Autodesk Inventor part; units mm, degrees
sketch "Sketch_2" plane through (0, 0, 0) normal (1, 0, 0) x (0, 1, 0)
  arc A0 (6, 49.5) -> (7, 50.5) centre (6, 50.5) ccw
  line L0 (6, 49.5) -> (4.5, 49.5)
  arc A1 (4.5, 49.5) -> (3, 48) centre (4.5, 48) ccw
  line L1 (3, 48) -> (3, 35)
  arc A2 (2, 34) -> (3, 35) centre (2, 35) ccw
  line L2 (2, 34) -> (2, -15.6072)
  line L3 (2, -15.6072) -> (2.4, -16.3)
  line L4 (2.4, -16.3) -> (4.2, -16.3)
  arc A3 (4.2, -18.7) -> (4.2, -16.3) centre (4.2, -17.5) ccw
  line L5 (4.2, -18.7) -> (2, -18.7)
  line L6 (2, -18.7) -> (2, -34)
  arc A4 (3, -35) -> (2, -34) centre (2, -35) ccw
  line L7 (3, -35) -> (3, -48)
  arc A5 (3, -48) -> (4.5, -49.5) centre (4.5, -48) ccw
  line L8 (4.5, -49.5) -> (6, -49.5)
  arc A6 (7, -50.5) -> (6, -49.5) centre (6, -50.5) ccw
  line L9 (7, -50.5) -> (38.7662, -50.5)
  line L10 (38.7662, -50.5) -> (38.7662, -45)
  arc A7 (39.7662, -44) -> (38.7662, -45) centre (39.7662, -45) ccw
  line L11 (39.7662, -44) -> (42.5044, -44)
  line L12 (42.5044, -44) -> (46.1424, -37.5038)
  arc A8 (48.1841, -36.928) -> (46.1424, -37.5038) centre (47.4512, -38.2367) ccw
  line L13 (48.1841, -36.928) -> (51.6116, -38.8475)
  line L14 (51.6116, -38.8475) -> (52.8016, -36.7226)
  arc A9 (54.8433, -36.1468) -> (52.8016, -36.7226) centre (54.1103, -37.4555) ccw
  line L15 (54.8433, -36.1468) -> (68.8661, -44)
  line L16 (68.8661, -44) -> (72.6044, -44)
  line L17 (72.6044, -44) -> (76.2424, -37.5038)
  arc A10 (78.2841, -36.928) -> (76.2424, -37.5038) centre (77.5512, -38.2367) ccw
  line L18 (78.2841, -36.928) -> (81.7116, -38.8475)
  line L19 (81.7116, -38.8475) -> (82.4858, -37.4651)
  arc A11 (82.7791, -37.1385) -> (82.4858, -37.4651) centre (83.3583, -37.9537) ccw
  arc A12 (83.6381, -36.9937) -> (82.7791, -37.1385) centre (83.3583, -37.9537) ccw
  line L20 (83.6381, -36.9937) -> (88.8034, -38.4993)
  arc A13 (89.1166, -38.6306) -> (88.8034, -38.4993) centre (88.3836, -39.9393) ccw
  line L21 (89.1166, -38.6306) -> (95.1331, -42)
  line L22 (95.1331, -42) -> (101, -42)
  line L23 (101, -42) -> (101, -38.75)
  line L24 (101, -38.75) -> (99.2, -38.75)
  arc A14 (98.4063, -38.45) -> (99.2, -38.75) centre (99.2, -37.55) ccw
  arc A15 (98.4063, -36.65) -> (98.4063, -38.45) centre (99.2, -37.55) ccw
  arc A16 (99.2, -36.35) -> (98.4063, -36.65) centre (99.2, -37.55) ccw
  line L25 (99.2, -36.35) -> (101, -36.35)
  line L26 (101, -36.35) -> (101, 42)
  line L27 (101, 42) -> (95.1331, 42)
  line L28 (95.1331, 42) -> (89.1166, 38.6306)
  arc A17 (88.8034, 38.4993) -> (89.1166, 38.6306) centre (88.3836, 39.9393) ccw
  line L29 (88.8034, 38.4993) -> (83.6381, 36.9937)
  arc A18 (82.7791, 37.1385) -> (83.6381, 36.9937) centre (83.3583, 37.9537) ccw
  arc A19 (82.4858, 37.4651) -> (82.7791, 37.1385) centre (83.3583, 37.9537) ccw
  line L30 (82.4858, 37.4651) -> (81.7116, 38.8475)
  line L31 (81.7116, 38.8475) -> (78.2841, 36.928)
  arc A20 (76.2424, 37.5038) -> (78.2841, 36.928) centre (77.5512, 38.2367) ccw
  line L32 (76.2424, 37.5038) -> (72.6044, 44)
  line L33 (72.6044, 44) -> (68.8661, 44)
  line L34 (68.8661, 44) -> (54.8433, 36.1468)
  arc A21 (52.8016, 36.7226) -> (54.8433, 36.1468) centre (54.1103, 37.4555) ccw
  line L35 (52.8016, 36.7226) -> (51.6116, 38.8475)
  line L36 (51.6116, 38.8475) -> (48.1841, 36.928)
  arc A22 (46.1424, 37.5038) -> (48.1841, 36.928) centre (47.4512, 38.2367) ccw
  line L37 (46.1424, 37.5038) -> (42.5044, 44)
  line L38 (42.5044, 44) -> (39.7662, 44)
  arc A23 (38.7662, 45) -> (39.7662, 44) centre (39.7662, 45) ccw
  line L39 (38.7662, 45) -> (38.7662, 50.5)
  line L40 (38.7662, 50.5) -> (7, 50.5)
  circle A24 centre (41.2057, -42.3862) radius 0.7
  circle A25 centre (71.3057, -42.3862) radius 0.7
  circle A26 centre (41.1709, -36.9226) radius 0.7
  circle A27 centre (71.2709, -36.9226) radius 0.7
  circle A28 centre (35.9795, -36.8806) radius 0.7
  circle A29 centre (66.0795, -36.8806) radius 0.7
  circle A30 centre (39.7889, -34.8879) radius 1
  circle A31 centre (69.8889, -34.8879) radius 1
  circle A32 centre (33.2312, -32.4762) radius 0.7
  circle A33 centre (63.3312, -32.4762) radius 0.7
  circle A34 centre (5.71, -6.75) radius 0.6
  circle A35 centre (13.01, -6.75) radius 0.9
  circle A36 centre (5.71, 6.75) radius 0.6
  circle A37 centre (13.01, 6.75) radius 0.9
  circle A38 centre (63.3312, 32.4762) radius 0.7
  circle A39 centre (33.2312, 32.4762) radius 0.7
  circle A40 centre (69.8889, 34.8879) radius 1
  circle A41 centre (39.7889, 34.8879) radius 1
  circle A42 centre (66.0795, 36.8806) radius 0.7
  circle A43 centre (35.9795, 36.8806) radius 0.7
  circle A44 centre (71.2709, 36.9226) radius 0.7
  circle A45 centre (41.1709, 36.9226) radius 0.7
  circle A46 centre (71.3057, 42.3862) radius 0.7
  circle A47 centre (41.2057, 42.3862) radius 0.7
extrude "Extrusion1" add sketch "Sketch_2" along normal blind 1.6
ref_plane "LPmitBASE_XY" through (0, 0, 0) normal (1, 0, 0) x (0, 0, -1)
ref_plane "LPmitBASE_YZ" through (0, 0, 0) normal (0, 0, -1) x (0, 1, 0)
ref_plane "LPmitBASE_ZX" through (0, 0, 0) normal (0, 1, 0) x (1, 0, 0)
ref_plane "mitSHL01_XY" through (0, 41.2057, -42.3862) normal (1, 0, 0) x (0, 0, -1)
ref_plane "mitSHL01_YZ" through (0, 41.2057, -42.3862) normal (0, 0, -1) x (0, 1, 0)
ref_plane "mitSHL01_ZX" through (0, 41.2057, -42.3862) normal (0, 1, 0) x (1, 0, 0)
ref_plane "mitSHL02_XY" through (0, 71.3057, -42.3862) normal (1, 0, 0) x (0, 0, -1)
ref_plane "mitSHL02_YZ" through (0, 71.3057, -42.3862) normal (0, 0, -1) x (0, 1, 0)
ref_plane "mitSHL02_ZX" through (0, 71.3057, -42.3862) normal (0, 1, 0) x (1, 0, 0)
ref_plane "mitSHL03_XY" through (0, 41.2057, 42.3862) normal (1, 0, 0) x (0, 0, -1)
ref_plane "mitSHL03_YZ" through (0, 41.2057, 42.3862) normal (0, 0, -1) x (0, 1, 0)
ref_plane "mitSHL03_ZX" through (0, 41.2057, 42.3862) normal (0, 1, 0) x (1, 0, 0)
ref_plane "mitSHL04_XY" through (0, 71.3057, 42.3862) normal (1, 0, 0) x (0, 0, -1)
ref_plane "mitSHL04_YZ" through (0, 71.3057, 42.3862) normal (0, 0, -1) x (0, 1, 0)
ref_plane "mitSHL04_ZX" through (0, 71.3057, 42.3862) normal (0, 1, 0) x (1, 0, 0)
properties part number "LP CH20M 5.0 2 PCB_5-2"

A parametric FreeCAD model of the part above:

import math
import FreeCAD as App
import Part
import Sketcher
from FreeCAD import Vector
Q = App.Units.Quantity

doc = App.newDocument("Part")
params = doc.addObject("Spreadsheet::Sheet", "Params")
for row, (alias, value) in enumerate([
    ("sketch1_diameter", "2 mm"),
    ("sketch1_diameter2", "2 mm"),
    ("sketch1_diameter3", "2 mm"),
    ("sketch1_diameter4", "2 mm"),
    ("sketch1_radius", "1 mm"),
    ("pad1_length", "1.6 mm"),
], start=1):
    params.set(f"A{row}", alias)
    params.set(f"B{row}", "=" + value)
    params.setAlias(f"B{row}", alias)

body = doc.addObject("PartDesign::Body", "Body")

sketch1 = body.newObject("Sketcher::SketchObject", "Sketch")
sketch1.AttachmentSupport = (doc.getObject("YZ_Plane"), [""])
sketch1.MapMode = "FlatFace"
sketch1.addGeometry([
    Part.ArcOfCircle(Part.Circle(Vector(6, 50.5, 0), Vector(0, 0, 1), 1), math.radians(-90), math.radians(0)),
    Part.LineSegment(Vector(6, 49.5, 0), Vector(4.5, 49.5, 0)),
    Part.ArcOfCircle(Part.Circle(Vector(4.5, 48, 0), Vector(0, 0, 1), 1.5), math.radians(90), math.radians(180)),
    Part.LineSegment(Vector(3, 48, 0), Vector(3, 35, 0)),
    Part.ArcOfCircle(Part.Circle(Vector(2, 35, 0), Vector(0, 0, 1), 1), math.radians(-90), math.radians(0)),
    Part.LineSegment(Vector(2, 34, 0), Vector(2, -15.6072, 0)),
    Part.LineSegment(Vector(2, -15.6072, 0), Vector(2.4, -16.3, 0)),
    Part.LineSegment(Vector(2.4, -16.3, 0), Vector(4.2, -16.3, 0)),
    Part.ArcOfCircle(Part.Circle(Vector(4.2, -17.5, 0), Vector(0, 0, 1), 1.2), math.radians(-90), math.radians(90)),
    Part.LineSegment(Vector(4.2, -18.7, 0), Vector(2, -18.7, 0)),
    Part.LineSegment(Vector(2, -18.7, 0), Vector(2, -34, 0)),
    Part.ArcOfCircle(Part.Circle(Vector(2, -35, 0), Vector(0, 0, 1), 1), math.radians(0), math.radians(90)),
    Part.LineSegment(Vector(3, -35, 0), Vector(3, -48, 0)),
    Part.ArcOfCircle(Part.Circle(Vector(4.5, -48, 0), Vector(0, 0, 1), 1.5), math.radians(180), math.radians(270)),
    Part.LineSegment(Vector(4.5, -49.5, 0), Vector(6, -49.5, 0)),
    Part.ArcOfCircle(Part.Circle(Vector(6, -50.5, 0), Vector(0, 0, 1), 1), math.radians(0), math.radians(90)),
    Part.LineSegment(Vector(7, -50.5, 0), Vector(38.7662, -50.5, 0)),
    Part.LineSegment(Vector(38.7662, -50.5, 0), Vector(38.7662, -45, 0)),
    Part.ArcOfCircle(Part.Circle(Vector(39.7662, -45, 0), Vector(0, 0, 1), 1), math.radians(90), math.radians(180)),
    Part.LineSegment(Vector(39.7662, -44, 0), Vector(42.5044, -44, 0)),
    Part.LineSegment(Vector(42.5044, -44, 0), Vector(46.1424, -37.5038, 0)),
    Part.ArcOfCircle(Part.Circle(Vector(47.4512, -38.2367, 0), Vector(0, 0, 1), 1.499946), math.radians(60.75024), math.radians(150.752107)),
    Part.LineSegment(Vector(48.1841, -36.928, 0), Vector(51.6116, -38.8475, 0)),
    Part.LineSegment(Vector(51.6116, -38.8475, 0), Vector(52.8016, -36.7226, 0)),
    Part.ArcOfCircle(Part.Circle(Vector(54.1103, -37.4555, 0), Vector(0, 0, 1), 1.499995), math.radians(60.746908), math.radians(150.75024)),
    Part.LineSegment(Vector(54.8433, -36.1468, 0), Vector(68.8661, -44, 0)),
    Part.LineSegment(Vector(68.8661, -44, 0), Vector(72.6044, -44, 0)),
    Part.LineSegment(Vector(72.6044, -44, 0), Vector(76.2424, -37.5038, 0)),
    Part.ArcOfCircle(Part.Circle(Vector(77.5512, -38.2367, 0), Vector(0, 0, 1), 1.499946), math.radians(60.75024), math.radians(150.752107)),
    Part.LineSegment(Vector(78.2841, -36.928, 0), Vector(81.7116, -38.8475, 0)),
    Part.LineSegment(Vector(81.7116, -38.8475, 0), Vector(82.4858, -37.4651, 0)),
    Part.ArcOfCircle(Part.Circle(Vector(83.3583, -37.9537, 0), Vector(0, 0, 1), 0.999944), math.radians(125.393813), math.radians(150.751174)),
    Part.ArcOfCircle(Part.Circle(Vector(83.3583, -37.9537, 0), Vector(0, 0, 1), 1.000012), math.radians(73.750797), math.radians(125.393813)),
    Part.LineSegment(Vector(83.6381, -36.9937, 0), Vector(88.8034, -38.4993, 0)),
    Part.ArcOfCircle(Part.Circle(Vector(88.385333, -39.935746, 0), Vector(0, 0, 1), 1.496047), math.radians(60.738323), math.radians(73.772773)),
    Part.LineSegment(Vector(89.1166, -38.6306, 0), Vector(95.1331, -42, 0)),
    Part.LineSegment(Vector(95.1331, -42, 0), Vector(101, -42, 0)),
    Part.LineSegment(Vector(101, -42, 0), Vector(101, -38.75, 0)),
    Part.LineSegment(Vector(101, -38.75, 0), Vector(99.2, -38.75, 0)),
    Part.ArcOfCircle(Part.Circle(Vector(99.2, -37.55, 0), Vector(0, 0, 1), 1.2), math.radians(-131.408713), math.radians(-90)),
    Part.ArcOfCircle(Part.Circle(Vector(99.2, -37.55, 0), Vector(0, 0, 1), 1.199983), math.radians(131.408713), math.radians(228.591287)),
    Part.ArcOfCircle(Part.Circle(Vector(99.2, -37.55, 0), Vector(0, 0, 1), 1.199983), math.radians(90), math.radians(131.408713)),
    Part.LineSegment(Vector(99.2, -36.35, 0), Vector(101, -36.35, 0)),
    Part.LineSegment(Vector(101, -36.35, 0), Vector(101, 42, 0)),
    Part.LineSegment(Vector(101, 42, 0), Vector(95.1331, 42, 0)),
    Part.LineSegment(Vector(95.1331, 42, 0), Vector(89.1166, 38.6306, 0)),
    Part.ArcOfCircle(Part.Circle(Vector(88.382273, 39.943047, 0), Vector(0, 0, 1), 1.503912), math.radians(-73.738545), math.radians(-60.772552)),
    Part.LineSegment(Vector(88.8034, 38.4993, 0), Vector(83.6381, 36.9937, 0)),
    Part.ArcOfCircle(Part.Circle(Vector(83.3583, 37.9537, 0), Vector(0, 0, 1), 0.999993), math.radians(-125.393813), math.radians(-73.750797)),
    Part.ArcOfCircle(Part.Circle(Vector(83.3583, 37.9537, 0), Vector(0, 0, 1), 1.000012), math.radians(-150.751174), math.radians(-125.393813)),
    Part.LineSegment(Vector(82.4858, 37.4651, 0), Vector(81.7116, 38.8475, 0)),
    Part.LineSegment(Vector(81.7116, 38.8475, 0), Vector(78.2841, 36.928, 0)),
    Part.ArcOfCircle(Part.Circle(Vector(77.5512, 38.2367, 0), Vector(0, 0, 1), 1.500033), math.radians(-150.752107), math.radians(-60.75024)),
    Part.LineSegment(Vector(76.2424, 37.5038, 0), Vector(72.6044, 44, 0)),
    Part.LineSegment(Vector(72.6044, 44, 0), Vector(68.8661, 44, 0)),
    Part.LineSegment(Vector(68.8661, 44, 0), Vector(54.8433, 36.1468, 0)),
    Part.ArcOfCircle(Part.Circle(Vector(54.1103, 37.4555, 0), Vector(0, 0, 1), 1.499946), math.radians(-150.75024), math.radians(-60.746908)),
    Part.LineSegment(Vector(52.8016, 36.7226, 0), Vector(51.6116, 38.8475, 0)),
    Part.LineSegment(Vector(51.6116, 38.8475, 0), Vector(48.1841, 36.928, 0)),
    Part.ArcOfCircle(Part.Circle(Vector(47.4512, 38.2367, 0), Vector(0, 0, 1), 1.500033), math.radians(-150.752107), math.radians(-60.75024)),
    Part.LineSegment(Vector(46.1424, 37.5038, 0), Vector(42.5044, 44, 0)),
    Part.LineSegment(Vector(42.5044, 44, 0), Vector(39.7662, 44, 0)),
    Part.ArcOfCircle(Part.Circle(Vector(39.7662, 45, 0), Vector(0, 0, 1), 1), math.radians(180), math.radians(270)),
    Part.LineSegment(Vector(38.7662, 45, 0), Vector(38.7662, 50.5, 0)),
    Part.LineSegment(Vector(38.7662, 50.5, 0), Vector(7, 50.5, 0)),
    Part.Circle(Vector(41.2057, -42.3862, 0), Vector(0, 0, 1), 0.7),
    Part.Circle(Vector(35.9795, -36.8806, 0), Vector(0, 0, 1), 0.7),
    Part.Circle(Vector(33.2312, -32.4762, 0), Vector(0, 0, 1), 0.7),
    Part.Circle(Vector(41.1709, -36.9226, 0), Vector(0, 0, 1), 0.7),
    Part.Circle(Vector(39.7889, -34.8879, 0), Vector(0, 0, 1), 1),
    Part.Circle(Vector(5.71, -6.75, 0), Vector(0, 0, 1), 0.6),
    Part.Circle(Vector(13.01, -6.75, 0), Vector(0, 0, 1), 0.9),
    Part.Circle(Vector(71.3057, -42.3862, 0), Vector(0, 0, 1), 0.7),
    Part.Circle(Vector(63.3312, -32.4762, 0), Vector(0, 0, 1), 0.7),
    Part.Circle(Vector(66.0795, -36.8806, 0), Vector(0, 0, 1), 0.7),
    Part.Circle(Vector(69.8889, -34.8879, 0), Vector(0, 0, 1), 1),
    Part.Circle(Vector(71.2709, -36.9226, 0), Vector(0, 0, 1), 0.7),
    Part.Circle(Vector(5.71, 6.75, 0), Vector(0, 0, 1), 0.6),
    Part.Circle(Vector(13.01, 6.75, 0), Vector(0, 0, 1), 0.9),
    Part.Circle(Vector(33.2312, 32.4762, 0), Vector(0, 0, 1), 0.7),
    Part.Circle(Vector(35.9795, 36.8806, 0), Vector(0, 0, 1), 0.7),
    Part.Circle(Vector(39.7889, 34.8879, 0), Vector(0, 0, 1), 1),
    Part.Circle(Vector(41.1709, 36.9226, 0), Vector(0, 0, 1), 0.7),
    Part.Circle(Vector(41.2057, 42.3862, 0), Vector(0, 0, 1), 0.7),
    Part.Circle(Vector(63.3312, 32.4762, 0), Vector(0, 0, 1), 0.7),
    Part.Circle(Vector(66.0795, 36.8806, 0), Vector(0, 0, 1), 0.7),
    Part.Circle(Vector(69.8889, 34.8879, 0), Vector(0, 0, 1), 1),
    Part.Circle(Vector(71.2709, 36.9226, 0), Vector(0, 0, 1), 0.7),
    Part.Circle(Vector(71.3057, 42.3862, 0), Vector(0, 0, 1), 0.7),
], False)
sketch1.addConstraint([
    Sketcher.Constraint("Coincident", 0, 1, 1, 1),
    Sketcher.Constraint("Coincident", 1, 2, 2, 1),
    Sketcher.Constraint("Coincident", 2, 2, 3, 1),
    Sketcher.Constraint("Coincident", 3, 2, 4, 2),
    Sketcher.Constraint("Coincident", 4, 1, 5, 1),
    Sketcher.Constraint("Coincident", 5, 2, 6, 1),
    Sketcher.Constraint("Coincident", 6, 2, 7, 1),
    Sketcher.Constraint("Coincident", 7, 2, 8, 2),
    Sketcher.Constraint("Coincident", 8, 1, 9, 1),
    Sketcher.Constraint("Coincident", 9, 2, 10, 1),
    Sketcher.Constraint("Coincident", 10, 2, 11, 2),
    Sketcher.Constraint("Coincident", 11, 1, 12, 1),
    Sketcher.Constraint("Coincident", 12, 2, 13, 1),
    Sketcher.Constraint("Coincident", 13, 2, 14, 1),
    Sketcher.Constraint("Coincident", 14, 2, 15, 2),
    Sketcher.Constraint("Coincident", 15, 1, 16, 1),
    Sketcher.Constraint("Coincident", 16, 2, 17, 1),
    Sketcher.Constraint("Coincident", 17, 2, 18, 2),
    Sketcher.Constraint("Coincident", 18, 1, 19, 1),
    Sketcher.Constraint("Coincident", 19, 2, 20, 1),
    Sketcher.Constraint("Coincident", 20, 2, 21, 2),
    Sketcher.Constraint("Coincident", 21, 1, 22, 1),
    Sketcher.Constraint("Coincident", 22, 2, 23, 1),
    Sketcher.Constraint("Coincident", 23, 2, 24, 2),
    Sketcher.Constraint("Coincident", 24, 1, 25, 1),
    Sketcher.Constraint("Coincident", 25, 2, 26, 1),
    Sketcher.Constraint("Coincident", 26, 2, 27, 1),
    Sketcher.Constraint("Coincident", 27, 2, 28, 2),
    Sketcher.Constraint("Coincident", 28, 1, 29, 1),
    Sketcher.Constraint("Coincident", 29, 2, 30, 1),
    Sketcher.Constraint("Coincident", 30, 2, 31, 2),
    Sketcher.Constraint("Coincident", 31, 1, 32, 2),
    Sketcher.Constraint("Coincident", 32, 1, 33, 1),
    Sketcher.Constraint("Coincident", 33, 2, 34, 2),
    Sketcher.Constraint("Coincident", 34, 1, 35, 1),
    Sketcher.Constraint("Coincident", 35, 2, 36, 1),
    Sketcher.Constraint("Coincident", 36, 2, 37, 1),
    Sketcher.Constraint("Coincident", 37, 2, 38, 1),
    Sketcher.Constraint("Coincident", 38, 2, 39, 2),
    Sketcher.Constraint("Coincident", 39, 1, 40, 2),
    Sketcher.Constraint("Coincident", 40, 1, 41, 2),
    Sketcher.Constraint("Coincident", 41, 1, 42, 1),
    Sketcher.Constraint("Coincident", 42, 2, 43, 1),
    Sketcher.Constraint("Coincident", 43, 2, 44, 1),
    Sketcher.Constraint("Coincident", 44, 2, 45, 1),
    Sketcher.Constraint("Coincident", 45, 2, 46, 2),
    Sketcher.Constraint("Coincident", 46, 1, 47, 1),
    Sketcher.Constraint("Coincident", 47, 2, 48, 2),
    Sketcher.Constraint("Coincident", 48, 1, 49, 2),
    Sketcher.Constraint("Coincident", 49, 1, 50, 1),
    Sketcher.Constraint("Coincident", 50, 2, 51, 1),
    Sketcher.Constraint("Coincident", 51, 2, 52, 2),
    Sketcher.Constraint("Coincident", 52, 1, 53, 1),
    Sketcher.Constraint("Coincident", 53, 2, 54, 1),
    Sketcher.Constraint("Coincident", 54, 2, 55, 1),
    Sketcher.Constraint("Coincident", 55, 2, 56, 2),
    Sketcher.Constraint("Coincident", 56, 1, 57, 1),
    Sketcher.Constraint("Coincident", 57, 2, 58, 1),
    Sketcher.Constraint("Coincident", 58, 2, 59, 2),
    Sketcher.Constraint("Coincident", 59, 1, 60, 1),
    Sketcher.Constraint("Coincident", 60, 2, 61, 1),
    Sketcher.Constraint("Coincident", 61, 2, 62, 2),
    Sketcher.Constraint("Coincident", 62, 1, 63, 1),
    Sketcher.Constraint("Coincident", 63, 2, 64, 1),
    Sketcher.Constraint("Coincident", 64, 2, 0, 2),
    Sketcher.Constraint("Horizontal", 1),
    Sketcher.Constraint("Vertical", 3),
    Sketcher.Constraint("Vertical", 5),
    Sketcher.Constraint("Horizontal", 7),
    Sketcher.Constraint("Horizontal", 9),
    Sketcher.Constraint("Vertical", 10),
    Sketcher.Constraint("Vertical", 12),
    Sketcher.Constraint("Horizontal", 14),
    Sketcher.Constraint("Horizontal", 16),
    Sketcher.Constraint("Vertical", 17),
    Sketcher.Constraint("Horizontal", 19),
    Sketcher.Constraint("Horizontal", 26),
    Sketcher.Constraint("Horizontal", 36),
    Sketcher.Constraint("Vertical", 37),
    Sketcher.Constraint("Horizontal", 38),
    Sketcher.Constraint("Horizontal", 42),
    Sketcher.Constraint("Vertical", 43),
    Sketcher.Constraint("Horizontal", 44),
    Sketcher.Constraint("Horizontal", 54),
    Sketcher.Constraint("Horizontal", 61),
    Sketcher.Constraint("Vertical", 63),
    Sketcher.Constraint("Horizontal", 64),
    Sketcher.Constraint("Coincident", 32, 3, 31, 3),
    Sketcher.Constraint("Coincident", 40, 3, 39, 3),
    Sketcher.Constraint("Coincident", 41, 3, 39, 3),
    Sketcher.Constraint("Coincident", 49, 3, 48, 3),
    Sketcher.Constraint("Diameter", 69, Q("2 mm")),
    Sketcher.Constraint("Diameter", 75, Q("2 mm")),
    Sketcher.Constraint("Diameter", 81, Q("2 mm")),
    Sketcher.Constraint("Diameter", 86, Q("2 mm")),
    Sketcher.Constraint("Radius", 0, Q("1 mm")),
    Sketcher.Constraint("Radius", 4, Q("1 mm")),
    Sketcher.Constraint("Radius", 11, Q("1 mm")),
    Sketcher.Constraint("Radius", 15, Q("1 mm")),
    Sketcher.Constraint("Radius", 18, Q("1 mm")),
    Sketcher.Constraint("Radius", 31, Q("1 mm")),
    Sketcher.Constraint("Radius", 48, Q("1 mm")),
    Sketcher.Constraint("Radius", 62, Q("1 mm")),
    Sketcher.Constraint("Diameter", 65, Q("1.4 mm")),
    Sketcher.Constraint("Diameter", 66, Q("1.4 mm")),
    Sketcher.Constraint("Diameter", 67, Q("1.4 mm")),
    Sketcher.Constraint("Diameter", 68, Q("1.4 mm")),
    Sketcher.Constraint("Diameter", 70, Q("1.2 mm")),
    Sketcher.Constraint("Diameter", 71, Q("1.8 mm")),
    Sketcher.Constraint("Diameter", 72, Q("1.4 mm")),
    Sketcher.Constraint("Diameter", 73, Q("1.4 mm")),
    Sketcher.Constraint("Diameter", 74, Q("1.4 mm")),
    Sketcher.Constraint("Diameter", 76, Q("1.4 mm")),
    Sketcher.Constraint("Diameter", 77, Q("1.2 mm")),
    Sketcher.Constraint("Diameter", 78, Q("1.8 mm")),
    Sketcher.Constraint("Diameter", 79, Q("1.4 mm")),
    Sketcher.Constraint("Diameter", 80, Q("1.4 mm")),
    Sketcher.Constraint("Diameter", 82, Q("1.4 mm")),
    Sketcher.Constraint("Diameter", 83, Q("1.4 mm")),
    Sketcher.Constraint("Diameter", 84, Q("1.4 mm")),
    Sketcher.Constraint("Diameter", 85, Q("1.4 mm")),
    Sketcher.Constraint("Diameter", 87, Q("1.4 mm")),
    Sketcher.Constraint("Diameter", 88, Q("1.4 mm")),
    Sketcher.Constraint("Radius", 2, Q("1.5 mm")),
    Sketcher.Constraint("Radius", 8, Q("1.2 mm")),
    Sketcher.Constraint("Radius", 13, Q("1.5 mm")),
    Sketcher.Constraint("Radius", 21, Q("1.5 mm")),
    Sketcher.Constraint("Radius", 24, Q("1.5 mm")),
    Sketcher.Constraint("Radius", 28, Q("1.5 mm")),
    Sketcher.Constraint("Radius", 39, Q("1.2 mm")),
    Sketcher.Constraint("Radius", 52, Q("1.5 mm")),
    Sketcher.Constraint("Radius", 56, Q("1.5 mm")),
    Sketcher.Constraint("Radius", 59, Q("1.5 mm")),
    Sketcher.Constraint("DistanceY", 3, 2, 3, 1, Q("13 mm")),
    Sketcher.Constraint("DistanceY", 12, 2, 12, 1, Q("13 mm")),
    Sketcher.Constraint("DistanceX", 1, 2, 1, 1, Q("1.5 mm")),
    Sketcher.Constraint("DistanceX", 7, 1, 7, 2, Q("1.8 mm")),
    Sketcher.Constraint("DistanceX", 9, 2, 9, 1, Q("2.2 mm")),
    Sketcher.Constraint("DistanceX", 14, 1, 14, 2, Q("1.5 mm")),
    Sketcher.Constraint("DistanceX", 38, 2, 38, 1, Q("1.8 mm")),
    Sketcher.Constraint("DistanceX", 42, 1, 42, 2, Q("1.8 mm")),
    Sketcher.Constraint("DistanceY", 10, 2, 10, 1, Q("15.3 mm")),
    Sketcher.Constraint("DistanceY", 17, 1, 17, 2, Q("5.5 mm")),
    Sketcher.Constraint("DistanceY", 63, 1, 63, 2, Q("5.5 mm")),
    Sketcher.Constraint("DistanceX", -1, 1, 0, 3, Q("6 mm")),
    Sketcher.Constraint("DistanceY", -1, 1, 2, 3, Q("48 mm")),
    Sketcher.Constraint("DistanceX", -1, 1, 4, 3, Q("2 mm")),
    Sketcher.Constraint("DistanceY", -1, 1, 4, 3, Q("35 mm")),
    Sketcher.Constraint("DistanceX", -1, 1, 11, 3, Q("2 mm")),
    Sketcher.Constraint("DistanceY", 11, 3, -1, 1, Q("35 mm")),
    Sketcher.Constraint("DistanceY", 13, 3, -1, 1, Q("48 mm")),
    Sketcher.Constraint("DistanceX", -1, 1, 15, 3, Q("6 mm")),
    Sketcher.Constraint("DistanceY", 18, 3, -1, 1, Q("45 mm")),
    Sketcher.Constraint("DistanceY", -1, 1, 62, 3, Q("45 mm")),
    Sketcher.Constraint("DistanceX", -1, 1, 0, 1, Q("6 mm")),
    Sketcher.Constraint("DistanceY", -1, 1, 2, 2, Q("48 mm")),
    Sketcher.Constraint("DistanceX", -1, 1, 4, 1, Q("2 mm")),
    Sketcher.Constraint("DistanceX", -1, 1, 9, 2, Q("2 mm")),
    Sketcher.Constraint("DistanceY", 11, 1, -1, 1, Q("35 mm")),
    Sketcher.Constraint("DistanceX", -1, 1, 14, 2, Q("6 mm")),
    Sketcher.Constraint("DistanceY", 17, 2, -1, 1, Q("45 mm")),
    Sketcher.Constraint("DistanceY", 25, 2, -1, 1, Q("44 mm")),
    Sketcher.Constraint("DistanceY", 35, 2, -1, 1, Q("42 mm")),
    Sketcher.Constraint("DistanceX", -1, 1, 36, 2, Q("101 mm")),
    Sketcher.Constraint("DistanceX", -1, 1, 42, 2, Q("101 mm")),
    Sketcher.Constraint("DistanceY", -1, 1, 43, 2, Q("42 mm")),
    Sketcher.Constraint("DistanceY", -1, 1, 53, 2, Q("44 mm")),
    Sketcher.Constraint("DistanceY", -1, 1, 62, 1, Q("45 mm")),
    Sketcher.Constraint("Radius", 34, Q("1.496 mm")),
    Sketcher.Constraint("Radius", 46, Q("1.504 mm")),
    Sketcher.Constraint("Distance", 6, Q("0.8 mm")),
    Sketcher.Constraint("DistanceY", 37, 1, 37, 2, Q("3.25 mm")),
    Sketcher.Constraint("DistanceX", -1, 1, 8, 3, Q("4.2 mm")),
    Sketcher.Constraint("DistanceX", -1, 1, 39, 3, Q("99.2 mm")),
    Sketcher.Constraint("DistanceX", -1, 1, 6, 2, Q("2.4 mm")),
    Sketcher.Constraint("DistanceX", 36, 1, 36, 2, Q("5.867 mm")),
    Sketcher.Constraint("DistanceX", 44, 2, 44, 1, Q("5.867 mm")),
    Sketcher.Constraint("DistanceX", -1, 1, 70, 3, Q("5.71 mm")),
    Sketcher.Constraint("DistanceY", 70, 3, -1, 1, Q("6.75 mm")),
    Sketcher.Constraint("DistanceX", -1, 1, 71, 3, Q("13.01 mm")),
    Sketcher.Constraint("DistanceY", 71, 3, -1, 1, Q("6.75 mm")),
    Sketcher.Constraint("DistanceX", -1, 1, 77, 3, Q("5.71 mm")),
    Sketcher.Constraint("DistanceY", -1, 1, 77, 3, Q("6.75 mm")),
    Sketcher.Constraint("DistanceX", -1, 1, 78, 3, Q("13.01 mm")),
    Sketcher.Constraint("DistanceY", -1, 1, 78, 3, Q("6.75 mm")),
    Sketcher.Constraint("DistanceY", 39, 1, -1, 1, Q("38.45 mm")),
    Sketcher.Constraint("DistanceY", 40, 1, -1, 1, Q("36.65 mm")),
    Sketcher.Constraint("Distance", 25, Q("16.072 mm")),
    Sketcher.Constraint("Distance", 55, Q("16.072 mm")),
    Sketcher.Constraint("DistanceX", 16, 1, 16, 2, Q("31.7662 mm")),
    Sketcher.Constraint("DistanceX", 19, 1, 19, 2, Q("2.7382 mm")),
    Sketcher.Constraint("DistanceX", 26, 1, 26, 2, Q("3.7383 mm")),
    Sketcher.Constraint("DistanceX", 54, 2, 54, 1, Q("3.7383 mm")),
    Sketcher.Constraint("DistanceX", 61, 2, 61, 1, Q("2.7382 mm")),
    Sketcher.Constraint("DistanceX", 64, 2, 64, 1, Q("31.7662 mm")),
    Sketcher.Constraint("DistanceY", -1, 1, 46, 3, Q("39.943 mm")),
    Sketcher.Constraint("DistanceX", -1, 1, 68, 3, Q("41.171 mm")),
    Sketcher.Constraint("DistanceX", -1, 1, 69, 3, Q("39.789 mm")),
    Sketcher.Constraint("DistanceY", 69, 3, -1, 1, Q("34.888 mm")),
    Sketcher.Constraint("DistanceX", -1, 1, 75, 3, Q("69.889 mm")),
    Sketcher.Constraint("DistanceY", 75, 3, -1, 1, Q("34.888 mm")),
    Sketcher.Constraint("DistanceX", -1, 1, 76, 3, Q("71.271 mm")),
    Sketcher.Constraint("DistanceX", -1, 1, 81, 3, Q("39.789 mm")),
    Sketcher.Constraint("DistanceY", -1, 1, 81, 3, Q("34.888 mm")),
    Sketcher.Constraint("DistanceX", -1, 1, 82, 3, Q("41.171 mm")),
    Sketcher.Constraint("DistanceX", -1, 1, 86, 3, Q("69.889 mm")),
    Sketcher.Constraint("DistanceY", -1, 1, 86, 3, Q("34.888 mm")),
    Sketcher.Constraint("DistanceX", -1, 1, 87, 3, Q("71.271 mm")),
    Sketcher.Constraint("DistanceX", -1, 1, 21, 1, Q("48.184 mm")),
    Sketcher.Constraint("DistanceY", 21, 1, -1, 1, Q("36.928 mm")),
    Sketcher.Constraint("DistanceX", -1, 1, 25, 2, Q("68.866 mm")),
    Sketcher.Constraint("DistanceX", -1, 1, 28, 1, Q("78.284 mm")),
    Sketcher.Constraint("DistanceY", 28, 1, -1, 1, Q("36.928 mm")),
    Sketcher.Constraint("DistanceY", 30, 2, -1, 1, Q("37.465 mm")),
    Sketcher.Constraint("DistanceX", -1, 1, 32, 1, Q("83.638 mm")),
    Sketcher.Constraint("DistanceX", -1, 1, 47, 2, Q("83.638 mm")),
    Sketcher.Constraint("DistanceX", -1, 1, 48, 1, Q("82.779 mm")),
    Sketcher.Constraint("DistanceY", -1, 1, 49, 1, Q("37.465 mm")),
    Sketcher.Constraint("DistanceX", -1, 1, 51, 2, Q("78.284 mm")),
    Sketcher.Constraint("DistanceY", -1, 1, 51, 2, Q("36.928 mm")),
    Sketcher.Constraint("DistanceX", -1, 1, 54, 2, Q("68.866 mm")),
    Sketcher.Constraint("DistanceX", -1, 1, 58, 2, Q("48.184 mm")),
    Sketcher.Constraint("DistanceY", -1, 1, 58, 2, Q("36.928 mm")),
    Sketcher.Constraint("Distance", 20, Q("7.4455 mm")),
    Sketcher.Constraint("Distance", 22, Q("3.9284 mm")),
    Sketcher.Constraint("Distance", 23, Q("2.4354 mm")),
    Sketcher.Constraint("Distance", 27, Q("7.4455 mm")),
    Sketcher.Constraint("Distance", 29, Q("3.9284 mm")),
    Sketcher.Constraint("Distance", 30, Q("1.5844 mm")),
    Sketcher.Constraint("Distance", 33, Q("5.3803 mm")),
    Sketcher.Constraint("Distance", 35, Q("6.8957 mm")),
    Sketcher.Constraint("Distance", 45, Q("6.8957 mm")),
    Sketcher.Constraint("Distance", 47, Q("5.3803 mm")),
    Sketcher.Constraint("Distance", 50, Q("1.5844 mm")),
    Sketcher.Constraint("Distance", 51, Q("3.9284 mm")),
    Sketcher.Constraint("Distance", 53, Q("7.4455 mm")),
    Sketcher.Constraint("Distance", 57, Q("2.4354 mm")),
    Sketcher.Constraint("Distance", 58, Q("3.9284 mm")),
    Sketcher.Constraint("Distance", 60, Q("7.4455 mm")),
    Sketcher.Constraint("DistanceX", -1, 1, 21, 3, Q("47.4512 mm")),
    Sketcher.Constraint("DistanceX", -1, 1, 24, 3, Q("54.1103 mm")),
    Sketcher.Constraint("DistanceY", 24, 3, -1, 1, Q("37.4555 mm")),
    Sketcher.Constraint("DistanceX", -1, 1, 28, 3, Q("77.5512 mm")),
    Sketcher.Constraint("DistanceX", -1, 1, 31, 3, Q("83.3583 mm")),
    Sketcher.Constraint("DistanceY", 31, 3, -1, 1, Q("37.9537 mm")),
    Sketcher.Constraint("DistanceX", -1, 1, 34, 3, Q("88.3853 mm")),
    Sketcher.Constraint("DistanceY", 34, 3, -1, 1, Q("39.9357 mm")),
    Sketcher.Constraint("DistanceX", -1, 1, 46, 3, Q("88.3823 mm")),
    Sketcher.Constraint("DistanceX", -1, 1, 48, 3, Q("83.3583 mm")),
    Sketcher.Constraint("DistanceY", -1, 1, 48, 3, Q("37.9537 mm")),
    Sketcher.Constraint("DistanceX", -1, 1, 52, 3, Q("77.5512 mm")),
    Sketcher.Constraint("DistanceX", -1, 1, 56, 3, Q("54.1103 mm")),
    Sketcher.Constraint("DistanceY", -1, 1, 56, 3, Q("37.4555 mm")),
    Sketcher.Constraint("DistanceX", -1, 1, 59, 3, Q("47.4512 mm")),
    Sketcher.Constraint("DistanceX", -1, 1, 65, 3, Q("41.2057 mm")),
    Sketcher.Constraint("DistanceY", 65, 3, -1, 1, Q("42.3862 mm")),
    Sketcher.Constraint("DistanceX", -1, 1, 66, 3, Q("35.9795 mm")),
    Sketcher.Constraint("DistanceY", 66, 3, -1, 1, Q("36.8806 mm")),
    Sketcher.Constraint("DistanceX", -1, 1, 67, 3, Q("33.2312 mm")),
    Sketcher.Constraint("DistanceY", 67, 3, -1, 1, Q("32.4762 mm")),
    Sketcher.Constraint("DistanceY", 68, 3, -1, 1, Q("36.9226 mm")),
    Sketcher.Constraint("DistanceX", -1, 1, 72, 3, Q("71.3057 mm")),
    Sketcher.Constraint("DistanceY", 72, 3, -1, 1, Q("42.3862 mm")),
    Sketcher.Constraint("DistanceX", -1, 1, 73, 3, Q("63.3312 mm")),
    Sketcher.Constraint("DistanceY", 73, 3, -1, 1, Q("32.4762 mm")),
    Sketcher.Constraint("DistanceX", -1, 1, 74, 3, Q("66.0795 mm")),
    Sketcher.Constraint("DistanceY", 74, 3, -1, 1, Q("36.8806 mm")),
    Sketcher.Constraint("DistanceY", 76, 3, -1, 1, Q("36.9226 mm")),
    Sketcher.Constraint("DistanceX", -1, 1, 79, 3, Q("33.2312 mm")),
    Sketcher.Constraint("DistanceY", -1, 1, 79, 3, Q("32.4762 mm")),
    Sketcher.Constraint("DistanceX", -1, 1, 80, 3, Q("35.9795 mm")),
    Sketcher.Constraint("DistanceY", -1, 1, 80, 3, Q("36.8806 mm")),
    Sketcher.Constraint("DistanceY", -1, 1, 82, 3, Q("36.9226 mm")),
    Sketcher.Constraint("DistanceX", -1, 1, 83, 3, Q("41.2057 mm")),
    Sketcher.Constraint("DistanceY", -1, 1, 83, 3, Q("42.3862 mm")),
    Sketcher.Constraint("DistanceX", -1, 1, 84, 3, Q("63.3312 mm")),
    Sketcher.Constraint("DistanceY", -1, 1, 84, 3, Q("32.4762 mm")),
    Sketcher.Constraint("DistanceX", -1, 1, 85, 3, Q("66.0795 mm")),
    Sketcher.Constraint("DistanceY", -1, 1, 85, 3, Q("36.8806 mm")),
    Sketcher.Constraint("DistanceY", -1, 1, 87, 3, Q("36.9226 mm")),
    Sketcher.Constraint("DistanceX", -1, 1, 88, 3, Q("71.3057 mm")),
    Sketcher.Constraint("DistanceY", -1, 1, 88, 3, Q("42.3862 mm")),
    Sketcher.Constraint("DistanceX", -1, 1, 18, 1, Q("39.7662 mm")),
    Sketcher.Constraint("DistanceX", -1, 1, 22, 2, Q("51.6116 mm")),
    Sketcher.Constraint("DistanceX", -1, 1, 31, 1, Q("82.7791 mm")),
    Sketcher.Constraint("DistanceX", -1, 1, 56, 1, Q("52.8016 mm")),
    Sketcher.Constraint("DistanceX", -1, 1, 59, 1, Q("46.1424 mm")),
])
sketch1.setExpression("Constraints[91]", "Params.sketch1_diameter")
sketch1.setExpression("Constraints[92]", "Params.sketch1_diameter2")
sketch1.setExpression("Constraints[93]", "Params.sketch1_diameter3")
sketch1.setExpression("Constraints[94]", "Params.sketch1_diameter4")
sketch1.setExpression("Constraints[95]", "Params.sketch1_radius")
pad1 = body.newObject("PartDesign::Pad", "Pad")
pad1.Profile = sketch1
pad1.setExpression("Length", "Params.pad1_length")

doc.recompute()
